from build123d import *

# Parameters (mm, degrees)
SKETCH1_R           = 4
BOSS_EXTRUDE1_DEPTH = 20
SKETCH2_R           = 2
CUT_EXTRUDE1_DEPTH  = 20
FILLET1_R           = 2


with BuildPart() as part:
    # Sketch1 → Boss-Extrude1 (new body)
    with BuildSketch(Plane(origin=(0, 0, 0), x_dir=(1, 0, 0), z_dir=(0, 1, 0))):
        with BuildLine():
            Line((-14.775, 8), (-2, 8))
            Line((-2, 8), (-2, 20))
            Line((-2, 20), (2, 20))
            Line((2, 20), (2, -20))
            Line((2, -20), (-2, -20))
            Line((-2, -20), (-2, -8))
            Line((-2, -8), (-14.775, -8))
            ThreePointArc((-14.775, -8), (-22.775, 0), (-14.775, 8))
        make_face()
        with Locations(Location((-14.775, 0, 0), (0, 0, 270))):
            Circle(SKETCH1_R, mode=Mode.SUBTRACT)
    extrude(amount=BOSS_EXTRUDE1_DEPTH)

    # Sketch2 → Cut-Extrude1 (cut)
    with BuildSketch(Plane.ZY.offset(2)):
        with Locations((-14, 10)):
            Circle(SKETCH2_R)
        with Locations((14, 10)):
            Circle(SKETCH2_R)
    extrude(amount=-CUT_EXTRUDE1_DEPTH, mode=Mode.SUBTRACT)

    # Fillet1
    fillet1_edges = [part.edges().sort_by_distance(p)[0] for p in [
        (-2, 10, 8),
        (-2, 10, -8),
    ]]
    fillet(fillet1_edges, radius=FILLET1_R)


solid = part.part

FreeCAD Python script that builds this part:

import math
import FreeCAD as App
import Part
import Sketcher

V = App.Vector


def edges_at(feature, points):
    """Names of the edges that pass closest to the given points."""
    edges = feature.Shape.Edges
    near = lambda p: min(range(len(edges)), key=lambda i: edges[i].distToShape(Part.Vertex(*p))[0])
    return sorted({f"Edge{near(p) + 1}" for p in points})

doc = App.newDocument("Part")
params = doc.addObject("Spreadsheet::Sheet", "Params")
for row, (alias, value) in enumerate([
    ("sketch1_diameter", "8 mm"),
    ("sketch1_radius", "8 mm"),
    ("sketch1_width", "4 mm"),
    ("sketch1_height", "12 mm"),
    ("pad1_length", "20 mm"),
    ("sketch2_diameter", "4 mm"),
    ("pocket1_length", "20 mm"),
    ("fillet_radius", "2 mm"),
], start=1):
    params.set(f"A{row}", alias)
    params.set(f"B{row}", "=" + value)
    params.setAlias(f"B{row}", alias)

body = doc.addObject("PartDesign::Body", "Body")

# Sketch on XZ plane
sketch1 = body.newObject("Sketcher::SketchObject", "Sketch")
sketch1.AttachmentSupport = (doc.getObject("XZ_Plane"), [""])
sketch1.MapMode = "FlatFace"
sketch1.addGeometry([
    Part.LineSegment(V(-2, -8, 0), V(-14.8, -8, 0)),  # 0
    Part.ArcOfCircle(Part.Circle(V(-14.8, 0, 0), V(0, 0, 1), 8), math.radians(90), math.radians(270)),  # 1
    Part.LineSegment(V(-14.8, 8, 0), V(-2, 8, 0)),  # 2
    Part.LineSegment(V(-2, 8, 0), V(-2, 20, 0)),  # 3
    Part.LineSegment(V(-2, 20, 0), V(2, 20, 0)),  # 4
    Part.LineSegment(V(2, 20, 0), V(2, -20, 0)),  # 5
    Part.LineSegment(V(2, -20, 0), V(-2, -20, 0)),  # 6
    Part.LineSegment(V(-2, -20, 0), V(-2, -8, 0)),  # 7
    Part.Circle(V(-14.8, 0, 0), V(0, 0, 1), 4),  # 8
], False)
sketch1.addConstraint([
    Sketcher.Constraint("Tangent", 0, 2, 1, 2),
    Sketcher.Constraint("Tangent", 1, 1, 2, 1),
    Sketcher.Constraint("Coincident", 2, 2, 3, 1),
    Sketcher.Constraint("Coincident", 3, 2, 4, 1),
    Sketcher.Constraint("Coincident", 4, 2, 5, 1),
    Sketcher.Constraint("Coincident", 5, 2, 6, 1),
    Sketcher.Constraint("Coincident", 6, 2, 7, 1),
    Sketcher.Constraint("Coincident", 7, 2, 0, 1),
    Sketcher.Constraint("Horizontal", 0),
    Sketcher.Constraint("Horizontal", 2),
    Sketcher.Constraint("Vertical", 3),
    Sketcher.Constraint("Horizontal", 4),
    Sketcher.Constraint("Vertical", 5),
    Sketcher.Constraint("Horizontal", 6),
    Sketcher.Constraint("Vertical", 7),
    Sketcher.Constraint("Coincident", 8, 3, 1, 3),
    Sketcher.Constraint("Symmetric", 3, 2, 5, 2, -1, 1),
    Sketcher.Constraint("Symmetric", 2, 2, 7, 2, -1),
    Sketcher.Constraint("Diameter", 8, 8.0),
    Sketcher.Constraint("Radius", 1, 8.0),
    Sketcher.Constraint("DistanceX", 4, 1, 4, 2, 4.0),
    Sketcher.Constraint("DistanceY", 3, 1, 3, 2, 12.0),
    Sketcher.Constraint("DistanceX", 0, 2, 0, 1, 12.775),
])
sketch1.setExpression("Constraints[18]", "Params.sketch1_diameter")
sketch1.setExpression("Constraints[19]", "Params.sketch1_radius")
sketch1.setExpression("Constraints[20]", "Params.sketch1_width")
sketch1.setExpression("Constraints[21]", "Params.sketch1_height")
pad1 = body.newObject("PartDesign::Pad", "Pad")
pad1.Profile = sketch1
pad1.setExpression("Length", "Params.pad1_length")
pad1.Reversed = True

# Sketch on YZ plane
sketch2 = body.newObject("Sketcher::SketchObject", "Sketch001")
sketch2.AttachmentSupport = (doc.getObject("YZ_Plane"), [""])
sketch2.MapMode = "FlatFace"
sketch2.AttachmentOffset = App.Placement(V(0, 0, -2), App.Rotation())
sketch2.addGeometry([
    Part.Circle(V(10, -14, 0), V(0, 0, 1), 2),
    Part.Circle(V(10, 14, 0), V(0, 0, 1), 2),
], False)
sketch2.addConstraint([
    Sketcher.Constraint("Equal", 0, 1),
    Sketcher.Constraint("Symmetric", 0, 3, 1, 3, -1),
    Sketcher.Constraint("Diameter", 0, 4.0),
    Sketcher.Constraint("DistanceX", -1, 1, 0, 3, 10.0),
    Sketcher.Constraint("DistanceY", 0, 3, -1, 1, 14.0),
])
sketch2.setExpression("Constraints[2]", "Params.sketch2_diameter")
pocket1 = body.newObject("PartDesign::Pocket", "Pocket")
pocket1.Profile = sketch2
pocket1.setExpression("Length", "Params.pocket1_length")
pocket1.Reversed = True
doc.recompute()

fillet = body.newObject("PartDesign::Fillet", "Fillet")
fillet.Base = (pocket1, edges_at(pocket1, [(-2, 10, 8), (-2, 10, -8)]))
fillet.setExpression("Radius", "Params.fillet_radius")

doc.recompute()
